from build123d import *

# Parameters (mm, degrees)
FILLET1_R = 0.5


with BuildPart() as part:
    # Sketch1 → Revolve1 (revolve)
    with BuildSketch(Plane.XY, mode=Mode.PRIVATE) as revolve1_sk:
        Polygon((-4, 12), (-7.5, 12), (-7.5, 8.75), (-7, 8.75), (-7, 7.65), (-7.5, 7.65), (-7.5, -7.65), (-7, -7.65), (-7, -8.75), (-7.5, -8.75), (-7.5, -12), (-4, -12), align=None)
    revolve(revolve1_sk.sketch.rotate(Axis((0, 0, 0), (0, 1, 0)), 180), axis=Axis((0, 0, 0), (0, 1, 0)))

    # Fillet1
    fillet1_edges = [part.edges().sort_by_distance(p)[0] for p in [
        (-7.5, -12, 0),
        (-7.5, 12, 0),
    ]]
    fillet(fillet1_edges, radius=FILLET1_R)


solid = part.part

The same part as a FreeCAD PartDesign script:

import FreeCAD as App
import Part
import Sketcher

V = App.Vector


def edges_at(feature, points):
    """Names of the edges that pass closest to the given points."""
    edges = feature.Shape.Edges
    near = lambda p: min(range(len(edges)), key=lambda i: edges[i].distToShape(Part.Vertex(*p))[0])
    return sorted({f"Edge{near(p) + 1}" for p in points})


def add_polygon(sketch, points):
    """Adds a closed chain of lines whose ends are joined by coincident constraints."""
    first, n = sketch.GeometryCount, len(points)
    for a, b in zip(points, points[1:] + points[:1]):
        sketch.addGeometry(Part.LineSegment(App.Vector(*a, 0), App.Vector(*b, 0)), False)
    for i in range(n):
        sketch.addConstraint(Sketcher.Constraint("Coincident", first + i, 2, first + (i + 1) % n, 1))

doc = App.newDocument("Part")
body = doc.addObject("PartDesign::Body", "Body")

sketch1 = body.newObject("Sketcher::SketchObject", "Sketch")
sketch1.AttachmentSupport = (doc.getObject("XY_Plane"), [""])
sketch1.MapMode = "FlatFace"
add_polygon(sketch1, [(-4, 12), (-7.5, 12), (-7.5, 8.8), (-7, 8.8), (-7, 7.7), (-7.5, 7.7), (-7.5, -7.7), (-7, -7.7), (-7, -8.8), (-7.5, -8.8), (-7.5, -12), (-4, -12)])
sketch1.addConstraint(Sketcher.Constraint("Horizontal", 0))
sketch1.addConstraint(Sketcher.Constraint("Vertical", 1))
sketch1.addConstraint(Sketcher.Constraint("Horizontal", 2))
sketch1.addConstraint(Sketcher.Constraint("Vertical", 3))
sketch1.addConstraint(Sketcher.Constraint("Horizontal", 4))
sketch1.addConstraint(Sketcher.Constraint("Vertical", 5))
sketch1.addConstraint(Sketcher.Constraint("Horizontal", 6))
sketch1.addConstraint(Sketcher.Constraint("Vertical", 7))
sketch1.addConstraint(Sketcher.Constraint("Horizontal", 8))
sketch1.addConstraint(Sketcher.Constraint("Vertical", 9))
sketch1.addConstraint(Sketcher.Constraint("Horizontal", 10))
sketch1.addConstraint(Sketcher.Constraint("Vertical", 11))
sketch1.addConstraint(Sketcher.Constraint("Symmetric", 3, 2, 6, 2, -1))
sketch1.addConstraint(Sketcher.Constraint("Symmetric", 1, 2, 8, 2, -1))
sketch1.addConstraint(Sketcher.Constraint("Vertical", 1, 2, 4, 2))
sketch1.addConstraint(Sketcher.Constraint("Equal", 1, 9))
sketch1.addConstraint(Sketcher.Constraint("DistanceY", 11, 1, 11, 2, 24.0))
sketch1.addConstraint(Sketcher.Constraint("DistanceX", 0, 2, 0, 1, 3.5))
sketch1.addConstraint(Sketcher.Constraint("DistanceX", 2, 1, 2, 2, 0.5))
sketch1.addConstraint(Sketcher.Constraint("DistanceY", 3, 2, 3, 1, 1.1))
sketch1.addConstraint(Sketcher.Constraint("DistanceY", 5, 2, 5, 1, 15.3))
sketch1.addConstraint(Sketcher.Constraint("DistanceX", 2, 2, -1, 1, 7.0))
revolution = body.newObject("PartDesign::Revolution", "Revolution")
revolution.Profile = sketch1
revolution.ReferenceAxis = (sketch1, ["V_Axis"])
revolution.Angle = 360
doc.recompute()

fillet = body.newObject("PartDesign::Fillet", "Fillet")
fillet.Base = (revolution, edges_at(revolution, [(-7.5, -12, 0), (-7.5, 12, 0)]))
fillet.Radius = 0.5

doc.recompute()
